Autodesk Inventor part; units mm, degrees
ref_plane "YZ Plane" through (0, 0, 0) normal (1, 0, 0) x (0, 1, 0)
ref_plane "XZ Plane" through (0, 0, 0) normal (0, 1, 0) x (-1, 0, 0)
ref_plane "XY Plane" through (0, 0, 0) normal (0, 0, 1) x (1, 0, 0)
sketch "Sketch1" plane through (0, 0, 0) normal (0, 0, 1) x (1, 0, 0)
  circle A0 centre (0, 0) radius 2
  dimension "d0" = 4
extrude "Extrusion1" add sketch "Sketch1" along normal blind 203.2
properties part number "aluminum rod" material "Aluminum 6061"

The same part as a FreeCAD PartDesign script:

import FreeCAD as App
import Part
import Sketcher
from FreeCAD import Vector

doc = App.newDocument("Part")
body = doc.addObject("PartDesign::Body", "Body")

# Sketch on XY plane
sketch1 = body.newObject("Sketcher::SketchObject", "Sketch")
sketch1.AttachmentSupport = (doc.getObject("XY_Plane"), [""])
sketch1.MapMode = "FlatFace"
sketch1.addGeometry(Part.Circle(Vector(0, 0, 0), Vector(0, 0, 1), 2), False)
sketch1.addConstraint([
    Sketcher.Constraint("Coincident", 0, 3, -1, 1),
    Sketcher.Constraint("Diameter", 0, 4.0),
])
pad1 = body.newObject("PartDesign::Pad", "Pad")
pad1.Profile = sketch1
pad1.Length = 203.2

doc.recompute()
